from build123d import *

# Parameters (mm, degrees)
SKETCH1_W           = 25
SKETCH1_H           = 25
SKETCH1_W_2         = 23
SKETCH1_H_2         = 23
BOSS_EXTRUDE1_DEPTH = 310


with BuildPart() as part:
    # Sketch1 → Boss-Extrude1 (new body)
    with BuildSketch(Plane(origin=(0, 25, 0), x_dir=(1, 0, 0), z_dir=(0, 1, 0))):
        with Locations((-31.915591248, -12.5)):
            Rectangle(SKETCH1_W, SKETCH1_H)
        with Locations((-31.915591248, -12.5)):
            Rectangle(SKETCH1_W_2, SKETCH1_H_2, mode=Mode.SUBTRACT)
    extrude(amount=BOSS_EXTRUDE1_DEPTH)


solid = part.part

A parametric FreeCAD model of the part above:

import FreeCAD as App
import Part
import Sketcher
Q = App.Units.Quantity


def add_polygon(sketch, points):
    """Adds a closed chain of lines whose ends are joined by coincident constraints."""
    first, n = sketch.GeometryCount, len(points)
    for a, b in zip(points, points[1:] + points[:1]):
        sketch.addGeometry(Part.LineSegment(App.Vector(*a, 0), App.Vector(*b, 0)), False)
    for i in range(n):
        sketch.addConstraint(Sketcher.Constraint("Coincident", first + i, 2, first + (i + 1) % n, 1))

doc = App.newDocument("Part")
body = doc.addObject("PartDesign::Body", "Body")

sketch1 = body.newObject("Sketcher::SketchObject", "Sketch")
sketch1.AttachmentSupport = (doc.getObject("XZ_Plane"), [""])
sketch1.MapMode = "FlatFace"
sketch1.AttachmentOffset = App.Placement(App.Vector(0, 0, -25), App.Rotation())
add_polygon(sketch1, [(-44, 0), (-44, 25), (-19, 25), (-19, 0)])
add_polygon(sketch1, [(-20, 24), (-43, 24), (-43, 1), (-20, 1)])
sketch1.addConstraint([
    Sketcher.Constraint("Vertical", 0),
    Sketcher.Constraint("Horizontal", 1),
    Sketcher.Constraint("Vertical", 2),
    Sketcher.Constraint("Horizontal", 3),
    Sketcher.Constraint("Horizontal", 4),
    Sketcher.Constraint("Vertical", 5),
    Sketcher.Constraint("Horizontal", 6),
    Sketcher.Constraint("Vertical", 7),
    Sketcher.Constraint("PointOnObject", 2, 2, -1),
    Sketcher.Constraint("Equal", 3, 0),
    Sketcher.Constraint("Equal", 6, 5),
    Sketcher.Constraint("DistanceX", 1, 1, 1, 2, Q("25 mm")),
    Sketcher.Constraint("DistanceX", 4, 2, 4, 1, Q("23 mm")),
    Sketcher.Constraint("DistanceY", -1, 1, 4, 2, Q("24 mm")),
    Sketcher.Constraint("DistanceX", 0, 2, 4, 2, Q("1 mm")),
    Sketcher.Constraint("DistanceX", 0, 2, -1, 1, Q("44.415591 mm")),
])
pad1 = body.newObject("PartDesign::Pad", "Pad")
pad1.Profile = sketch1
pad1.Length = 310
pad1.Reversed = True

doc.recompute()
